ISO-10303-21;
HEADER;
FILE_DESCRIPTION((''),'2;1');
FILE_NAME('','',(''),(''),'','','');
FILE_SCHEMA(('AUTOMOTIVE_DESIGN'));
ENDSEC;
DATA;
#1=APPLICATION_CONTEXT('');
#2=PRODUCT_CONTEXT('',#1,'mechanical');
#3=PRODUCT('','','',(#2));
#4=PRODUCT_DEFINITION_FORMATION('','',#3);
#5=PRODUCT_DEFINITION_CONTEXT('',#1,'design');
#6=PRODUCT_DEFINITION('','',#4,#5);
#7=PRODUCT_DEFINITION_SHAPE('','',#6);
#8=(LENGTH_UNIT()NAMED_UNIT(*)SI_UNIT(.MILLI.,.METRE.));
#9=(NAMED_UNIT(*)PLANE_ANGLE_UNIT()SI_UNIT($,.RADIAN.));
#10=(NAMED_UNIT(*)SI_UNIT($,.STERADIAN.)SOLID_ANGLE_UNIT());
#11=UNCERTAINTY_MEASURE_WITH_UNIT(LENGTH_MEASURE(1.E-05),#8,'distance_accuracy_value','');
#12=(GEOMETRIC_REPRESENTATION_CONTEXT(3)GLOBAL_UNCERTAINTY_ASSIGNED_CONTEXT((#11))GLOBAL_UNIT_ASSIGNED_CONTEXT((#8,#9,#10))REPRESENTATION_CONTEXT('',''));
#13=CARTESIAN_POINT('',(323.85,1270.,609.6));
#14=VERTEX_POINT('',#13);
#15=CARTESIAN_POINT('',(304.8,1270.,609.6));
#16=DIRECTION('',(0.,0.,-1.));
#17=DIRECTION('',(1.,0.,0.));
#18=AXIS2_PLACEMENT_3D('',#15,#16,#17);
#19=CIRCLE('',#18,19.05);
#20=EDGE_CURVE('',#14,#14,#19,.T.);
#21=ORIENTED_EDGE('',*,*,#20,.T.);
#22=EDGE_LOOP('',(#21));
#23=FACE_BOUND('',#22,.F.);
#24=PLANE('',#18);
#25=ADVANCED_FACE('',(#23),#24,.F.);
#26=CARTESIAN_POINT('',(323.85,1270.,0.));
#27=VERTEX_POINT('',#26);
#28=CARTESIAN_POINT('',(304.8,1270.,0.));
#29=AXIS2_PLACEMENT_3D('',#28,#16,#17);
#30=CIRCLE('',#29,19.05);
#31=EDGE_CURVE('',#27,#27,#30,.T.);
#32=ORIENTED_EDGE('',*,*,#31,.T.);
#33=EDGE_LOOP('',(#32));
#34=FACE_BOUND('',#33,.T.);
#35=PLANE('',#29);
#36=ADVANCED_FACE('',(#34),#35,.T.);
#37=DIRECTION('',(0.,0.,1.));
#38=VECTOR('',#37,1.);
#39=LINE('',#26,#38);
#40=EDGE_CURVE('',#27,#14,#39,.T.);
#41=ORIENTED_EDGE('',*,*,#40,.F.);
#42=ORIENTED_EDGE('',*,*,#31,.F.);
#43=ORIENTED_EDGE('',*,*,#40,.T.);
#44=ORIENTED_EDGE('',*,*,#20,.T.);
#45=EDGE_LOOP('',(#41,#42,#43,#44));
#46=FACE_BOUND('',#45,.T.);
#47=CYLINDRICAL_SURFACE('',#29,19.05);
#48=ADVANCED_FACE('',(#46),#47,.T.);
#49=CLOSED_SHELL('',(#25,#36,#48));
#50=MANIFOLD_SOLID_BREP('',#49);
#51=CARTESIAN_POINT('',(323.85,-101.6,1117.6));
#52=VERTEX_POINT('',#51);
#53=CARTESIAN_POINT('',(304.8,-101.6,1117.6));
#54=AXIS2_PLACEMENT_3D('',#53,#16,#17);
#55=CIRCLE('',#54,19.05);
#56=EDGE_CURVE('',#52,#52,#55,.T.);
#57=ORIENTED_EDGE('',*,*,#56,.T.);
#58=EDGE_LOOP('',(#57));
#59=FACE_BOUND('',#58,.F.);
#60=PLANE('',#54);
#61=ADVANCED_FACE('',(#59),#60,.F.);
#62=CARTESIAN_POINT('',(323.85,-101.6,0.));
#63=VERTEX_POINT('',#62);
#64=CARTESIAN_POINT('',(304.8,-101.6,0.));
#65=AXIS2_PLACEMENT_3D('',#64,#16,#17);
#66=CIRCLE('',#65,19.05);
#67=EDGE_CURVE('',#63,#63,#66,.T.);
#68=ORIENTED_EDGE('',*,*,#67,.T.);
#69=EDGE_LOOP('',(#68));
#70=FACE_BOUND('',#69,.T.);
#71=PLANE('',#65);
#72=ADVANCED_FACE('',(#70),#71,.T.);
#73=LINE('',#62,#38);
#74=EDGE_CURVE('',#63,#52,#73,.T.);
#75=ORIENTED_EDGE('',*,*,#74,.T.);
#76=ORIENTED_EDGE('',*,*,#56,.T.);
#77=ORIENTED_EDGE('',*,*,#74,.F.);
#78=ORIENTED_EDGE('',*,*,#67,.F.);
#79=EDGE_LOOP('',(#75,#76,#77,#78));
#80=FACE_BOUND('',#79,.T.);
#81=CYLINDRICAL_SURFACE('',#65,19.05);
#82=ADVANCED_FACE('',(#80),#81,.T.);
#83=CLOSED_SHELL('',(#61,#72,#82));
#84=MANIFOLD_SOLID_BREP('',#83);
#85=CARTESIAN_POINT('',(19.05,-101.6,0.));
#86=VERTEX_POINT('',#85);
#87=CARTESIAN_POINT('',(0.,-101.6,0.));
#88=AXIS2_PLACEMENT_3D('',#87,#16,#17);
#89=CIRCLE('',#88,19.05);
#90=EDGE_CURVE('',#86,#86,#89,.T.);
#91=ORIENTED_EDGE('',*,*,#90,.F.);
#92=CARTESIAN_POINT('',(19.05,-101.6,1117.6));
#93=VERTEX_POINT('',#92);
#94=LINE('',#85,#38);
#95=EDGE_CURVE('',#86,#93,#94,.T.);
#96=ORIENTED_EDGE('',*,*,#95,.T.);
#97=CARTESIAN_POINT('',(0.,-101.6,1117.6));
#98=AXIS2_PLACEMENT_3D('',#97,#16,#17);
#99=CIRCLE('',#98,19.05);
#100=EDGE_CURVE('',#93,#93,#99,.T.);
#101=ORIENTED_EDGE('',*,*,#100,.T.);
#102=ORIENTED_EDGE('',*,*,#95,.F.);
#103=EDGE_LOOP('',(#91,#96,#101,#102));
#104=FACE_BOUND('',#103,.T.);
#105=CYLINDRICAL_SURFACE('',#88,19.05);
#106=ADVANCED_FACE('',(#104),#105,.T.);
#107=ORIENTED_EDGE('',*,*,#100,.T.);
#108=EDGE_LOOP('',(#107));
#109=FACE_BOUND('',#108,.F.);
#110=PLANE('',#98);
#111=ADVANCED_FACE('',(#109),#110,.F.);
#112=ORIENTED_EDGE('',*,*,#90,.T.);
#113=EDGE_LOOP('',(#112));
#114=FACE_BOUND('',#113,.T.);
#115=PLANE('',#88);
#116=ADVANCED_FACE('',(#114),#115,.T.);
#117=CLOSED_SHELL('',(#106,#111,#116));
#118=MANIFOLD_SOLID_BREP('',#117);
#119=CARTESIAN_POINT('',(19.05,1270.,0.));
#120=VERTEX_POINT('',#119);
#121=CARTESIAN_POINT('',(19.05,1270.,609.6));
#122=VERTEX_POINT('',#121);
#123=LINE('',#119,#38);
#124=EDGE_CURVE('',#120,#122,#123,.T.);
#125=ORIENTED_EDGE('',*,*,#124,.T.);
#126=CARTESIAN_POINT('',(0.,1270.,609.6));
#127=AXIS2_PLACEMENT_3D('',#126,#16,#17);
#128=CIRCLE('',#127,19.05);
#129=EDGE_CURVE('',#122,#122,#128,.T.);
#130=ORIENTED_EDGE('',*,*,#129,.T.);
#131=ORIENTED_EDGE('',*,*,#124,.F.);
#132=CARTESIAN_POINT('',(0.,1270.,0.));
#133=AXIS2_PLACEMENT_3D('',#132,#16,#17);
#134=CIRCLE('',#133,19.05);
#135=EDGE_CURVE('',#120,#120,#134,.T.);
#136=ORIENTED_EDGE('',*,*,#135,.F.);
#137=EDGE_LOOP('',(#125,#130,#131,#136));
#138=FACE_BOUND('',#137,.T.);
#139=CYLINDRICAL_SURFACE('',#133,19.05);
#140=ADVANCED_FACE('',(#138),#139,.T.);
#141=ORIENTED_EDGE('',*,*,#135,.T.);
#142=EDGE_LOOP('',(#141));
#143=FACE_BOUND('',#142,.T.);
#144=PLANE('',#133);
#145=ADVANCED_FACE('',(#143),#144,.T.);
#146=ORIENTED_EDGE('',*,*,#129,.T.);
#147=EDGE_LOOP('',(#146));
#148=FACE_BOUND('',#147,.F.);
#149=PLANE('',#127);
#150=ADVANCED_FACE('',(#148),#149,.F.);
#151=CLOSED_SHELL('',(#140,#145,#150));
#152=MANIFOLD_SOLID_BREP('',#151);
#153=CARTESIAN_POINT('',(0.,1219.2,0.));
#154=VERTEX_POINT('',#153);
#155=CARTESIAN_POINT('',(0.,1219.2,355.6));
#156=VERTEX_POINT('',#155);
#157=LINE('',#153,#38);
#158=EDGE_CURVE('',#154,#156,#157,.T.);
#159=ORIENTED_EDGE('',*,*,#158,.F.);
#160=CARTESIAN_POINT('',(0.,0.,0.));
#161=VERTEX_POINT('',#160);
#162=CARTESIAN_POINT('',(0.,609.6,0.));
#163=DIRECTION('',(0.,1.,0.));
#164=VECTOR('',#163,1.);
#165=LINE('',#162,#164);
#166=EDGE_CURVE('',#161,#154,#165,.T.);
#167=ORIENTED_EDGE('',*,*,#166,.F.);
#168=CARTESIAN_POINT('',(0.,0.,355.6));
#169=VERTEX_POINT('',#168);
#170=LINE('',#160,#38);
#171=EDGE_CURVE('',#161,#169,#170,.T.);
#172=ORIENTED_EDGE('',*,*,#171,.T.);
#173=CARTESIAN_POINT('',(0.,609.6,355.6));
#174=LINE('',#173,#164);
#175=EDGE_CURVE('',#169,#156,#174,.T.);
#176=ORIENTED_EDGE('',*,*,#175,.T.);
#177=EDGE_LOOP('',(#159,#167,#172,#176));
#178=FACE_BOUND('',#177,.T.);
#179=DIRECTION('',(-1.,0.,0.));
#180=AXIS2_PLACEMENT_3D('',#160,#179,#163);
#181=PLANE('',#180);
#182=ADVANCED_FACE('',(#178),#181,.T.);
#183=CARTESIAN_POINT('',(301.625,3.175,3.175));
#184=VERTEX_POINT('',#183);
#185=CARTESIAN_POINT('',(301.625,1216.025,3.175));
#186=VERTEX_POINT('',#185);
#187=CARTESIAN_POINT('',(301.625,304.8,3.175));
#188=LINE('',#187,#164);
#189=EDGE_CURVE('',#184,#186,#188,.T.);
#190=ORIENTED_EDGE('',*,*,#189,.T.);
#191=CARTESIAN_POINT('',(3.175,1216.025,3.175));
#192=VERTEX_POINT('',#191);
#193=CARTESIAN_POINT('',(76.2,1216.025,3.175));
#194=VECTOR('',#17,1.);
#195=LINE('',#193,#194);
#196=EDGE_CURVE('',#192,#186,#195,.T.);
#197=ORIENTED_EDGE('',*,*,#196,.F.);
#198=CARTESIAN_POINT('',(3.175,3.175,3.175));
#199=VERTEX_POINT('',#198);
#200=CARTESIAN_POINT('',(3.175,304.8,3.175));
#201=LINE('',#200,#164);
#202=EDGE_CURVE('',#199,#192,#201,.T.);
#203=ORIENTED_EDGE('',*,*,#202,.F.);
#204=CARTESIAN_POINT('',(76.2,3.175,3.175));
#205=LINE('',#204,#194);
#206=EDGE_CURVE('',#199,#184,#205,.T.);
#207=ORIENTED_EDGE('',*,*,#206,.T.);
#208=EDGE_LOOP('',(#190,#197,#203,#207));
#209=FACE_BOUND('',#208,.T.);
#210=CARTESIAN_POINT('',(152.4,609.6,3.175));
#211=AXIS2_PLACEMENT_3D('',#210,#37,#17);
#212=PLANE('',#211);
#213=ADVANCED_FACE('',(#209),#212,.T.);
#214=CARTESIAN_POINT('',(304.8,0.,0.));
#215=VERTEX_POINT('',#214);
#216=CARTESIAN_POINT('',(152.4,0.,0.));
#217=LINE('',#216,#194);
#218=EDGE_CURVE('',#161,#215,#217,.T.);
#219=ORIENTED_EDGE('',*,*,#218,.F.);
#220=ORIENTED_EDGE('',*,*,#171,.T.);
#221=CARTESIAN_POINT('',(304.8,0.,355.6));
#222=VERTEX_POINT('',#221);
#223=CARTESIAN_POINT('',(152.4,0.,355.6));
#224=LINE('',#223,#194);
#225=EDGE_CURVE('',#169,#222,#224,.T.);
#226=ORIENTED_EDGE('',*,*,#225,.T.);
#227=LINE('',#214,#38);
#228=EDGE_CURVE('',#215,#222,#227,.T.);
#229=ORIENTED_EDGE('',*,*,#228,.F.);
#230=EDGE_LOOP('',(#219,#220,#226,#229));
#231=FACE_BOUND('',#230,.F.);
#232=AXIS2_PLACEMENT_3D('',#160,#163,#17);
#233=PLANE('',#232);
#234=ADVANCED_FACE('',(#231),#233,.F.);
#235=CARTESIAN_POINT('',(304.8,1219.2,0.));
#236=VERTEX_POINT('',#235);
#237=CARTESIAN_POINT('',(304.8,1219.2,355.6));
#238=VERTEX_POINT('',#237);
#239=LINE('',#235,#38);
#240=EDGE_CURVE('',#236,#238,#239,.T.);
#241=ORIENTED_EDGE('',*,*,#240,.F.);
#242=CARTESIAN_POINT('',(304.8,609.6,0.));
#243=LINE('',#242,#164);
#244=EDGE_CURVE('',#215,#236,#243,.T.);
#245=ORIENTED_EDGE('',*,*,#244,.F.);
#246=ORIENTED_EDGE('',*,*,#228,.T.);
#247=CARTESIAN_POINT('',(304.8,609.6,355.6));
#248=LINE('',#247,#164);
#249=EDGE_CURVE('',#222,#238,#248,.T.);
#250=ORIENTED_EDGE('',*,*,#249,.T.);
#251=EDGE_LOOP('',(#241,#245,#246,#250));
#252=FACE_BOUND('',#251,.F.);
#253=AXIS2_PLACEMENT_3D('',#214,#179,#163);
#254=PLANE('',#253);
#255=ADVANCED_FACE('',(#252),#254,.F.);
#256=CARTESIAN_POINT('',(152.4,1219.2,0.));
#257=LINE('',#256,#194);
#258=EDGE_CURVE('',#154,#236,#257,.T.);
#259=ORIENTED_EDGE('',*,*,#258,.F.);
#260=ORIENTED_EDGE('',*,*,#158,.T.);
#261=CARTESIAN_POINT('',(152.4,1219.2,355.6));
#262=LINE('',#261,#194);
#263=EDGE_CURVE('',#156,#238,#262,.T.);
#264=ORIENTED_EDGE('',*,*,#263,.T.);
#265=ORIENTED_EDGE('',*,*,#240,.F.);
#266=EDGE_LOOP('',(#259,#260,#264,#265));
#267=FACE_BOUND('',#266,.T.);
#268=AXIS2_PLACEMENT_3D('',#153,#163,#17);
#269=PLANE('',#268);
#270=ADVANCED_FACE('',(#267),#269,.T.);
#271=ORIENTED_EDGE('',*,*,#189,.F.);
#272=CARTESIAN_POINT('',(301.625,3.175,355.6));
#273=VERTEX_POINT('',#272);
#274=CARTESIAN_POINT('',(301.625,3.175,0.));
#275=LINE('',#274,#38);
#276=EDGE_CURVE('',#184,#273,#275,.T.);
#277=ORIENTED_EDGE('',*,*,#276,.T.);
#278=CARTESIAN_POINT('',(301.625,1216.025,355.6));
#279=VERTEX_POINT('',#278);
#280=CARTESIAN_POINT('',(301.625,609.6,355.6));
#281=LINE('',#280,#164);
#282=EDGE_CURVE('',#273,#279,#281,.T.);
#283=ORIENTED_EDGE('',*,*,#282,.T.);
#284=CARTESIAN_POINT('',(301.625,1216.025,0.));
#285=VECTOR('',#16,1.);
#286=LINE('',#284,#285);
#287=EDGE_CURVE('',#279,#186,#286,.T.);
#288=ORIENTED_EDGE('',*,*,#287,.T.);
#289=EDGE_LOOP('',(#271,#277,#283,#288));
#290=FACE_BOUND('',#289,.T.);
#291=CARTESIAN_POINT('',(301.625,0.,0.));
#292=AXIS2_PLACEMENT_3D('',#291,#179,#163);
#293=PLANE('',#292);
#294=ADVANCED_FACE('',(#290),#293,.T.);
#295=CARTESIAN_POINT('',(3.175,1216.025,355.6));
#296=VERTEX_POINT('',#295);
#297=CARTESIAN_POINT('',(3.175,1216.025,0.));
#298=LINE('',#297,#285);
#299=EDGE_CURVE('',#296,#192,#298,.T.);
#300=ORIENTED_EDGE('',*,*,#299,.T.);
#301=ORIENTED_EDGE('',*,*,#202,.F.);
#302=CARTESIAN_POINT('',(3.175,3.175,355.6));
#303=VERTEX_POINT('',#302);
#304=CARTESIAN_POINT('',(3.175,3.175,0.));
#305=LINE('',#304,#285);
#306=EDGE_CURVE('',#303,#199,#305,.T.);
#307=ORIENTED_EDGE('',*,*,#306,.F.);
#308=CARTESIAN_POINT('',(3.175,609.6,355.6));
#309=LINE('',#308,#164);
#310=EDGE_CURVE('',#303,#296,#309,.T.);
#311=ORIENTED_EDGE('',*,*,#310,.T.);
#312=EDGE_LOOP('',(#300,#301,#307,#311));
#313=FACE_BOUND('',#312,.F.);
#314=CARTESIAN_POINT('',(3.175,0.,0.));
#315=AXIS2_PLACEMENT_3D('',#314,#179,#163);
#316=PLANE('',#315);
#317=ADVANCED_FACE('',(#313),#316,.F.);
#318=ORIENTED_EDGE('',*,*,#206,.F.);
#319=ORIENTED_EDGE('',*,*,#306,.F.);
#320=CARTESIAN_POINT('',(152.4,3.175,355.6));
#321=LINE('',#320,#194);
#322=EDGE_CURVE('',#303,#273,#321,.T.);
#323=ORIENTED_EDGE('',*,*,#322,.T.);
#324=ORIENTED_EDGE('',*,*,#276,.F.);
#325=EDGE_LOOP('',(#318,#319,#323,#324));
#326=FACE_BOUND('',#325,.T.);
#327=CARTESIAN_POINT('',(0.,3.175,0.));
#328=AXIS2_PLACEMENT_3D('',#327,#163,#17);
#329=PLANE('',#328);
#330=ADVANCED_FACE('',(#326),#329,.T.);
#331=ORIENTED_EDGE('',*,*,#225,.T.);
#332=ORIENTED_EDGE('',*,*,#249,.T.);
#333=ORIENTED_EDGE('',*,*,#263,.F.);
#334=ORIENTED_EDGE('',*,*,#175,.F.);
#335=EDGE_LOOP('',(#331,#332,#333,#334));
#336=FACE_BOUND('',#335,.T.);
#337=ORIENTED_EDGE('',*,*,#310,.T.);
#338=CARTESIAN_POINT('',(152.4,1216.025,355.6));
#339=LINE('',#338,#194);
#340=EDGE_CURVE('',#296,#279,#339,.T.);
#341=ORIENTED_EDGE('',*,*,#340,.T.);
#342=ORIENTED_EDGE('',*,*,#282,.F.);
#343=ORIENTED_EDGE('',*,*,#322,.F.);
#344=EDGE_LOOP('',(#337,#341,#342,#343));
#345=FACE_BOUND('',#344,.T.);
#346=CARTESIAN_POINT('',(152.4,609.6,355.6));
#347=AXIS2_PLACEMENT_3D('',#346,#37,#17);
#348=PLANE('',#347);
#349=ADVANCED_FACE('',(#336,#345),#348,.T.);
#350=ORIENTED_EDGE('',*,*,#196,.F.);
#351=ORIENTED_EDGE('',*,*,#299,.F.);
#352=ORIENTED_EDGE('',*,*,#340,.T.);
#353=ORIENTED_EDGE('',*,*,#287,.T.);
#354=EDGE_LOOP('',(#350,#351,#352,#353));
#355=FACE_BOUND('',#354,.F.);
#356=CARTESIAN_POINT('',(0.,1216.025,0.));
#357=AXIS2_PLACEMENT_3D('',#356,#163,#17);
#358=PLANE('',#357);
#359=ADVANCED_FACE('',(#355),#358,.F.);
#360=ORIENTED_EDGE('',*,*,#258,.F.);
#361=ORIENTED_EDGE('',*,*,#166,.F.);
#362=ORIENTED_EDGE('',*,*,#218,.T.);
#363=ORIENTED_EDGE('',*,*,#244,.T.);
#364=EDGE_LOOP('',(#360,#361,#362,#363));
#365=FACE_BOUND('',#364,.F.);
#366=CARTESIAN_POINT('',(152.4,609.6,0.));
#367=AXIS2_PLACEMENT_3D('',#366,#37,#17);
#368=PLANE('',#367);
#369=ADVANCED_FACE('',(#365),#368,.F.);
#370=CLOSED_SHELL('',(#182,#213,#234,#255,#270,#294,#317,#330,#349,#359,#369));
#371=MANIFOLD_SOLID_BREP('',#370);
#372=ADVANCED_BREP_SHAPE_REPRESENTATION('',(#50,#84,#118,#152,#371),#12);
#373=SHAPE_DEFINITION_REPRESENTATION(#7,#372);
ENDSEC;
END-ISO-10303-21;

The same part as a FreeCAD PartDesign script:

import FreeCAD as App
import Part
import Sketcher
Q = App.Units.Quantity


def faces_at(feature, points):
    """Names of the faces that lie closest to the given points."""
    faces = feature.Shape.Faces
    near = lambda p: min(range(len(faces)), key=lambda i: faces[i].distToShape(Part.Vertex(*p))[0])
    return sorted({f"Face{near(p) + 1}" for p in points})


def add_polygon(sketch, points):
    """Adds a closed chain of lines whose ends are joined by coincident constraints."""
    first, n = sketch.GeometryCount, len(points)
    for a, b in zip(points, points[1:] + points[:1]):
        sketch.addGeometry(Part.LineSegment(App.Vector(*a, 0), App.Vector(*b, 0)), False)
    for i in range(n):
        sketch.addConstraint(Sketcher.Constraint("Coincident", first + i, 2, first + (i + 1) % n, 1))

doc = App.newDocument("Part")
body = doc.addObject("PartDesign::Body", "Body")

# Sketch on XY plane
sketch1 = doc.addObject("Sketcher::SketchObject", "Sketch")
body.addObject(sketch1)
sketch1.AttachmentSupport = (doc.XY_Plane, [""])
sketch1.MapMode = "FlatFace"
add_polygon(sketch1, [(0, 1219), (0, 0), (305, 0), (305, 1219)])  # lines 0-3
sketch1.addConstraint([
    Sketcher.Constraint("Vertical", 0),
    Sketcher.Constraint("Horizontal", 1),
    Sketcher.Constraint("Vertical", 2),
    Sketcher.Constraint("Horizontal", 3),
    Sketcher.Constraint("Coincident", 0, 2, -1, 1),
    Sketcher.Constraint("DistanceX", 1, 1, 1, 2, Q("12 in")),
    Sketcher.Constraint("DistanceY", 0, 2, 0, 1, Q("48 in")),
])
pad1 = doc.addObject("PartDesign::Pad", "Pad")
body.addObject(pad1)
pad1.Profile = sketch1
pad1.Length = Q("14 in")
doc.recompute()

thickness = doc.addObject("PartDesign::Thickness", "Thickness")
body.addObject(thickness)
thickness.Base = (pad1, faces_at(pad1, [(152.4, 609.6, 355.6)]))
thickness.Value = Q("0.125 in")
thickness.Reversed = True
thickness.Join = "Arc"
body2 = doc.addObject("PartDesign::Body", "Body001")
body2.AllowCompound = True

# Sketch on XY plane
sketch2 = doc.addObject("Sketcher::SketchObject", "Sketch001")
body2.addObject(sketch2)
sketch2.AttachmentSupport = (doc.getObject("XY_Plane001"), [""])
sketch2.MapMode = "FlatFace"
sketch2.addGeometry([
    Part.Circle(App.Vector(0, -102, 0), App.Vector(0, 0, 1), 19),
    Part.Circle(App.Vector(305, -102, 0), App.Vector(0, 0, 1), 19),
], False)
sketch2.addConstraint([
    Sketcher.Constraint("Equal", 0, 1),
    Sketcher.Constraint("PointOnObject", 0, 3, -2),
    Sketcher.Constraint("Horizontal", 0, 3, 1, 3),
    Sketcher.Constraint("Diameter", 0, Q("1.5 in")),
    Sketcher.Constraint("DistanceY", 0, 3, -1, 1, Q("4 in")),
    Sketcher.Constraint("DistanceX", -1, 1, 1, 3, Q("12 in")),
])
pad2 = doc.addObject("PartDesign::Pad", "Pad001")
body2.addObject(pad2)
pad2.Profile = sketch2
pad2.Length = Q("44 in")
body3 = doc.addObject("PartDesign::Body", "Body002")
body3.AllowCompound = True

# Sketch on XY plane
sketch3 = doc.addObject("Sketcher::SketchObject", "Sketch002")
body3.addObject(sketch3)
sketch3.AttachmentSupport = (doc.getObject("XY_Plane002"), [""])
sketch3.MapMode = "FlatFace"
sketch3.addGeometry([
    Part.Circle(App.Vector(0, 1270, 0), App.Vector(0, 0, 1), 19),
    Part.Circle(App.Vector(305, 1270, 0), App.Vector(0, 0, 1), 19),
], False)
sketch3.addConstraint([
    Sketcher.Constraint("Equal", 0, 1),
    Sketcher.Constraint("PointOnObject", 0, 3, -2),
    Sketcher.Constraint("Horizontal", 0, 3, 1, 3),
    Sketcher.Constraint("Diameter", 0, Q("1.5 in")),
    Sketcher.Constraint("DistanceY", -1, 1, 0, 3, Q("50 in")),
    Sketcher.Constraint("DistanceX", -1, 1, 1, 3, Q("12 in")),
])
pad3 = doc.addObject("PartDesign::Pad", "Pad002")
body3.addObject(pad3)
pad3.Profile = sketch3
pad3.Length = Q("24 in")

doc.recompute()
